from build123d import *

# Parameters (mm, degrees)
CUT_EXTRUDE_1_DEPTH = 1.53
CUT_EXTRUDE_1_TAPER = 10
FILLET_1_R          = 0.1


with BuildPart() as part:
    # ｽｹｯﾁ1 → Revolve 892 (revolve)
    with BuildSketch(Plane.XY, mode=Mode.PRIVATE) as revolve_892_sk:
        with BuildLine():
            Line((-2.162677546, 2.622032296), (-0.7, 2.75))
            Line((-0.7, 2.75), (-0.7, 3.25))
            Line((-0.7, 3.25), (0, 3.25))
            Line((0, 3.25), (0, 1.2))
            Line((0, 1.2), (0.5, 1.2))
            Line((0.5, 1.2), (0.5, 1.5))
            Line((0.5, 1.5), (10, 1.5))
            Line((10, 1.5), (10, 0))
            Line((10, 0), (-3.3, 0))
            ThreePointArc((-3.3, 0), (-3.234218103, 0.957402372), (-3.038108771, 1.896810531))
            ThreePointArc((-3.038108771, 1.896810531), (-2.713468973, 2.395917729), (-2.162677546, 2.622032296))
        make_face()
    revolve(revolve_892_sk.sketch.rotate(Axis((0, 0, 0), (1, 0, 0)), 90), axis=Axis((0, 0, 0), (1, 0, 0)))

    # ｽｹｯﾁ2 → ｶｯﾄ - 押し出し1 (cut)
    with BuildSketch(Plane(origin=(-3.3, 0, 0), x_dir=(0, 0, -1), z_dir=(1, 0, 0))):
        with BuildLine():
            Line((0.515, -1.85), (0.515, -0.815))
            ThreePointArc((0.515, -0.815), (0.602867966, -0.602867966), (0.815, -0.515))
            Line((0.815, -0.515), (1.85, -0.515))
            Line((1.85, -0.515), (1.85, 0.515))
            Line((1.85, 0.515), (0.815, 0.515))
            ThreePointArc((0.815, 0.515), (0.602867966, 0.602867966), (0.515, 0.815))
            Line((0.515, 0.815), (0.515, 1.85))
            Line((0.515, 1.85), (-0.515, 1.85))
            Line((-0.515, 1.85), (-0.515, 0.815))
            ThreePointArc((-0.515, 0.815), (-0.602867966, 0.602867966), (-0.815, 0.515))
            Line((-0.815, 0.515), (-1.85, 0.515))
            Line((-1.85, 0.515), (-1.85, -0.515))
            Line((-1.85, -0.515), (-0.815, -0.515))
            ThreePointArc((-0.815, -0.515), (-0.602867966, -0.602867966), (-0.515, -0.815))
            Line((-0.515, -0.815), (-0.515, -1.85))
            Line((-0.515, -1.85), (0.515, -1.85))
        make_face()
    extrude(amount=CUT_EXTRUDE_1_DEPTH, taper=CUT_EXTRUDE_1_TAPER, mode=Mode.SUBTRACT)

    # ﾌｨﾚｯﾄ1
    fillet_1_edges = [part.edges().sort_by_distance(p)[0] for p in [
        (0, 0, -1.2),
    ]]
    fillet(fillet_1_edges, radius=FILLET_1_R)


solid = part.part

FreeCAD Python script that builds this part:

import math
import FreeCAD as App
import Part
import Sketcher

V = App.Vector
Q = App.Units.Quantity


def edges_at(feature, points):
    """Names of the edges that pass closest to the given points."""
    edges = feature.Shape.Edges
    near = lambda p: min(range(len(edges)), key=lambda i: edges[i].distToShape(Part.Vertex(*p))[0])
    return sorted({f"Edge{near(p) + 1}" for p in points})

doc = App.newDocument("Part")
params = doc.addObject("Spreadsheet::Sheet", "Params")
for row, (alias, value) in enumerate([
    ("sketch1_radius", "1 mm"),
    ("sketch1_radius2", "7 mm"),
    ("sketch1_width", "13.3 mm"),
    ("sketch1_width2", "9.5 mm"),
    ("sketch1_width3", "0.5 mm"),
    ("revolution_angle", "360 deg"),
    ("sketch2_radius", "0.3 mm"),
    ("sketch2_width", "1.03 mm"),
    ("pocket1_length", "1.53 mm"),
    ("pocket1_taper", "-10 deg"),
    ("fillet_radius", "0.1 mm"),
], start=1):
    params.set(f"A{row}", alias)
    params.set(f"B{row}", "=" + value)
    params.setAlias(f"B{row}", alias)

body = doc.addObject("PartDesign::Body", "Body")

sketch1 = doc.addObject("Sketcher::SketchObject", "Sketch")
body.addObject(sketch1)
sketch1.AttachmentSupport = (doc.XY_Plane, [""])
sketch1.MapMode = "FlatFace"
sketch1.addGeometry(Part.LineSegment(V(-0.7, 2.75, 0), V(-2.16, 2.62, 0)), False)
sketch1.addGeometry(Part.ArcOfCircle(Part.Circle(V(-2.08, 1.63, 0), V(0, 0, 1), 1), math.radians(95), math.radians(164)), False)
sketch1.addGeometry(Part.ArcOfCircle(Part.Circle(V(3.7, 0, 0), V(0, 0, 1), 7), math.radians(164.28), math.radians(180)), False)
sketch1.addGeometry(Part.LineSegment(V(-3.3, 0, 0), V(10, 0, 0)), False)
sketch1.addGeometry(Part.LineSegment(V(10, 0, 0), V(10, 1.5, 0)), False)
sketch1.addGeometry(Part.LineSegment(V(10, 1.5, 0), V(0.5, 1.5, 0)), False)
sketch1.addGeometry(Part.LineSegment(V(0.5, 1.5, 0), V(0.5, 1.2, 0)), False)
sketch1.addGeometry(Part.LineSegment(V(0.5, 1.2, 0), V(0, 1.2, 0)), False)
sketch1.addGeometry(Part.LineSegment(V(0, 1.2, 0), V(0, 3.25, 0)), False)
sketch1.addGeometry(Part.LineSegment(V(0, 3.25, 0), V(-0.7, 3.25, 0)), False)
sketch1.addGeometry(Part.LineSegment(V(-0.7, 3.25, 0), V(-0.7, 2.75, 0)), False)
sketch1.addConstraint(Sketcher.Constraint("Tangent", 0, 2, 1, 1))
sketch1.addConstraint(Sketcher.Constraint("Tangent", 1, 2, 2, 1))
sketch1.addConstraint(Sketcher.Constraint("Coincident", 2, 2, 3, 1))
sketch1.addConstraint(Sketcher.Constraint("Coincident", 3, 2, 4, 1))
sketch1.addConstraint(Sketcher.Constraint("Coincident", 4, 2, 5, 1))
sketch1.addConstraint(Sketcher.Constraint("Coincident", 5, 2, 6, 1))
sketch1.addConstraint(Sketcher.Constraint("Coincident", 6, 2, 7, 1))
sketch1.addConstraint(Sketcher.Constraint("Coincident", 7, 2, 8, 1))
sketch1.addConstraint(Sketcher.Constraint("Coincident", 8, 2, 9, 1))
sketch1.addConstraint(Sketcher.Constraint("Coincident", 9, 2, 10, 1))
sketch1.addConstraint(Sketcher.Constraint("Coincident", 10, 2, 0, 1))
sketch1.addConstraint(Sketcher.Constraint("Horizontal", 3))
sketch1.addConstraint(Sketcher.Constraint("Vertical", 4))
sketch1.addConstraint(Sketcher.Constraint("Horizontal", 5))
sketch1.addConstraint(Sketcher.Constraint("Vertical", 6))
sketch1.addConstraint(Sketcher.Constraint("Horizontal", 7))
sketch1.addConstraint(Sketcher.Constraint("Vertical", 8))
sketch1.addConstraint(Sketcher.Constraint("Horizontal", 9))
sketch1.addConstraint(Sketcher.Constraint("Vertical", 10))
sketch1.addConstraint(Sketcher.Constraint("PointOnObject", 2, 3, -1))
sketch1.addConstraint(Sketcher.Constraint("PointOnObject", 2, 2, -1))
sketch1.addConstraint(Sketcher.Constraint("PointOnObject", 7, 2, -2))
sketch1.addConstraint(Sketcher.Constraint("Equal", 7, 10))
sketch1.addConstraint(Sketcher.Constraint("Radius", 1, Q("1 mm")))
sketch1.addConstraint(Sketcher.Constraint("Radius", 2, Q("7 mm")))
sketch1.addConstraint(Sketcher.Constraint("Angle", 0, Q("-175 deg")))
sketch1.addConstraint(Sketcher.Constraint("DistanceX", 3, 1, 3, 2, Q("13.3 mm")))
sketch1.addConstraint(Sketcher.Constraint("DistanceX", 5, 2, 5, 1, Q("9.5 mm")))
sketch1.addConstraint(Sketcher.Constraint("DistanceX", 7, 2, 7, 1, Q("0.5 mm")))
sketch1.addConstraint(Sketcher.Constraint("DistanceX", 9, 2, 9, 1, Q("0.7 mm")))
sketch1.addConstraint(Sketcher.Constraint("DistanceY", 4, 1, 4, 2, Q("1.5 mm")))
sketch1.addConstraint(Sketcher.Constraint("DistanceY", 6, 2, 6, 1, Q("0.3 mm")))
sketch1.addConstraint(Sketcher.Constraint("DistanceY", 8, 1, 8, 2, Q("2.05 mm")))
sketch1.setExpression("Constraints[23]", "Params.sketch1_radius")
sketch1.setExpression("Constraints[24]", "Params.sketch1_radius2")
sketch1.setExpression("Constraints[26]", "Params.sketch1_width")
sketch1.setExpression("Constraints[27]", "Params.sketch1_width2")
sketch1.setExpression("Constraints[28]", "Params.sketch1_width3")
revolution = doc.addObject("PartDesign::Revolution", "Revolution")
body.addObject(revolution)
revolution.Profile = sketch1
revolution.ReferenceAxis = (sketch1, ["H_Axis"])
revolution.setExpression("Angle", "Params.revolution_angle")

sketch2 = doc.addObject("Sketcher::SketchObject", "Sketch001")
body.addObject(sketch2)
sketch2.AttachmentSupport = (doc.YZ_Plane, [""])
sketch2.MapMode = "FlatFace"
sketch2.AttachmentOffset = App.Placement(V(0, 0, -3.3), App.Rotation())
sketch2.addGeometry(Part.LineSegment(V(-1.85, -0.52, 0), V(-0.81, -0.52, 0)), False)
sketch2.addGeometry(Part.ArcOfCircle(Part.Circle(V(-0.82, -0.82, 0), V(0, 0, 1), 0.3), math.radians(0), math.radians(90)), False)
sketch2.addGeometry(Part.LineSegment(V(-0.52, -0.81, 0), V(-0.52, -1.85, 0)), False)
sketch2.addGeometry(Part.LineSegment(V(-0.52, -1.85, 0), V(0.52, -1.85, 0)), False)
sketch2.addGeometry(Part.LineSegment(V(0.52, -1.85, 0), V(0.52, -0.81, 0)), False)
sketch2.addGeometry(Part.ArcOfCircle(Part.Circle(V(0.82, -0.82, 0), V(0, 0, 1), 0.3), math.radians(90), math.radians(180)), False)
sketch2.addGeometry(Part.LineSegment(V(0.81, -0.52, 0), V(1.85, -0.52, 0)), False)
sketch2.addGeometry(Part.LineSegment(V(1.85, -0.52, 0), V(1.85, 0.52, 0)), False)
sketch2.addGeometry(Part.LineSegment(V(1.85, 0.52, 0), V(0.81, 0.52, 0)), False)
sketch2.addGeometry(Part.ArcOfCircle(Part.Circle(V(0.82, 0.82, 0), V(0, 0, 1), 0.3), math.radians(-180), math.radians(-90)), False)
sketch2.addGeometry(Part.LineSegment(V(0.52, 0.81, 0), V(0.52, 1.85, 0)), False)
sketch2.addGeometry(Part.LineSegment(V(0.52, 1.85, 0), V(-0.52, 1.85, 0)), False)
sketch2.addGeometry(Part.LineSegment(V(-0.52, 1.85, 0), V(-0.52, 0.81, 0)), False)
sketch2.addGeometry(Part.ArcOfCircle(Part.Circle(V(-0.82, 0.82, 0), V(0, 0, 1), 0.3), math.radians(-90), math.radians(0)), False)
sketch2.addGeometry(Part.LineSegment(V(-0.81, 0.52, 0), V(-1.85, 0.52, 0)), False)
sketch2.addGeometry(Part.LineSegment(V(-1.85, 0.52, 0), V(-1.85, -0.52, 0)), False)
sketch2.addConstraint(Sketcher.Constraint("Tangent", 0, 2, 1, 2))
sketch2.addConstraint(Sketcher.Constraint("Tangent", 1, 1, 2, 1))
sketch2.addConstraint(Sketcher.Constraint("Coincident", 2, 2, 3, 1))
sketch2.addConstraint(Sketcher.Constraint("Coincident", 3, 2, 4, 1))
sketch2.addConstraint(Sketcher.Constraint("Tangent", 4, 2, 5, 2))
sketch2.addConstraint(Sketcher.Constraint("Tangent", 5, 1, 6, 1))
sketch2.addConstraint(Sketcher.Constraint("Coincident", 6, 2, 7, 1))
sketch2.addConstraint(Sketcher.Constraint("Coincident", 7, 2, 8, 1))
sketch2.addConstraint(Sketcher.Constraint("Tangent", 8, 2, 9, 2))
sketch2.addConstraint(Sketcher.Constraint("Tangent", 9, 1, 10, 1))
sketch2.addConstraint(Sketcher.Constraint("Coincident", 10, 2, 11, 1))
sketch2.addConstraint(Sketcher.Constraint("Coincident", 11, 2, 12, 1))
sketch2.addConstraint(Sketcher.Constraint("Tangent", 12, 2, 13, 2))
sketch2.addConstraint(Sketcher.Constraint("Tangent", 13, 1, 14, 1))
sketch2.addConstraint(Sketcher.Constraint("Coincident", 14, 2, 15, 1))
sketch2.addConstraint(Sketcher.Constraint("Coincident", 15, 2, 0, 1))
sketch2.addConstraint(Sketcher.Constraint("Horizontal", 0))
sketch2.addConstraint(Sketcher.Constraint("Vertical", 2))
sketch2.addConstraint(Sketcher.Constraint("Horizontal", 3))
sketch2.addConstraint(Sketcher.Constraint("Vertical", 4))
sketch2.addConstraint(Sketcher.Constraint("Horizontal", 6))
sketch2.addConstraint(Sketcher.Constraint("Vertical", 7))
sketch2.addConstraint(Sketcher.Constraint("Horizontal", 8))
sketch2.addConstraint(Sketcher.Constraint("Vertical", 10))
sketch2.addConstraint(Sketcher.Constraint("Horizontal", 11))
sketch2.addConstraint(Sketcher.Constraint("Vertical", 12))
sketch2.addConstraint(Sketcher.Constraint("Horizontal", 14))
sketch2.addConstraint(Sketcher.Constraint("Vertical", 15))
sketch2.addConstraint(Sketcher.Constraint("Equal", 1, 5))
sketch2.addConstraint(Sketcher.Constraint("Equal", 5, 9))
sketch2.addConstraint(Sketcher.Constraint("Equal", 9, 13))
sketch2.addConstraint(Sketcher.Constraint("Symmetric", 1, 3, 9, 3, -1, 1))
sketch2.addConstraint(Sketcher.Constraint("Symmetric", 5, 3, 13, 3, -1, 1))
sketch2.addConstraint(Sketcher.Constraint("Symmetric", 1, 3, 5, 3, -2))
sketch2.addConstraint(Sketcher.Constraint("Equal", 0, 6))
sketch2.addConstraint(Sketcher.Constraint("Equal", 14, 2))
sketch2.addConstraint(Sketcher.Constraint("Equal", 11, 7))
sketch2.addConstraint(Sketcher.Constraint("Equal", 4, 10))
sketch2.addConstraint(Sketcher.Constraint("Radius", 1, Q("0.3 mm")))
sketch2.addConstraint(Sketcher.Constraint("DistanceX", 3, 1, 3, 2, Q("1.03 mm")))
sketch2.addConstraint(Sketcher.Constraint("DistanceX", 0, 1, 0, 2, Q("1.035 mm")))
sketch2.setExpression("Constraints[38]", "Params.sketch2_radius")
sketch2.setExpression("Constraints[39]", "Params.sketch2_width")
pocket1 = doc.addObject("PartDesign::Pocket", "Pocket")
body.addObject(pocket1)
pocket1.Profile = sketch2
pocket1.setExpression("Length", "Params.pocket1_length")
pocket1.Reversed = True
pocket1.setExpression("TaperAngle", "Params.pocket1_taper")
doc.recompute()

fillet = doc.addObject("PartDesign::Fillet", "Fillet")
body.addObject(fillet)
fillet.Base = (pocket1, edges_at(pocket1, [(0, 0, -1.2)]))
fillet.setExpression("Radius", "Params.fillet_radius")

doc.recompute()
